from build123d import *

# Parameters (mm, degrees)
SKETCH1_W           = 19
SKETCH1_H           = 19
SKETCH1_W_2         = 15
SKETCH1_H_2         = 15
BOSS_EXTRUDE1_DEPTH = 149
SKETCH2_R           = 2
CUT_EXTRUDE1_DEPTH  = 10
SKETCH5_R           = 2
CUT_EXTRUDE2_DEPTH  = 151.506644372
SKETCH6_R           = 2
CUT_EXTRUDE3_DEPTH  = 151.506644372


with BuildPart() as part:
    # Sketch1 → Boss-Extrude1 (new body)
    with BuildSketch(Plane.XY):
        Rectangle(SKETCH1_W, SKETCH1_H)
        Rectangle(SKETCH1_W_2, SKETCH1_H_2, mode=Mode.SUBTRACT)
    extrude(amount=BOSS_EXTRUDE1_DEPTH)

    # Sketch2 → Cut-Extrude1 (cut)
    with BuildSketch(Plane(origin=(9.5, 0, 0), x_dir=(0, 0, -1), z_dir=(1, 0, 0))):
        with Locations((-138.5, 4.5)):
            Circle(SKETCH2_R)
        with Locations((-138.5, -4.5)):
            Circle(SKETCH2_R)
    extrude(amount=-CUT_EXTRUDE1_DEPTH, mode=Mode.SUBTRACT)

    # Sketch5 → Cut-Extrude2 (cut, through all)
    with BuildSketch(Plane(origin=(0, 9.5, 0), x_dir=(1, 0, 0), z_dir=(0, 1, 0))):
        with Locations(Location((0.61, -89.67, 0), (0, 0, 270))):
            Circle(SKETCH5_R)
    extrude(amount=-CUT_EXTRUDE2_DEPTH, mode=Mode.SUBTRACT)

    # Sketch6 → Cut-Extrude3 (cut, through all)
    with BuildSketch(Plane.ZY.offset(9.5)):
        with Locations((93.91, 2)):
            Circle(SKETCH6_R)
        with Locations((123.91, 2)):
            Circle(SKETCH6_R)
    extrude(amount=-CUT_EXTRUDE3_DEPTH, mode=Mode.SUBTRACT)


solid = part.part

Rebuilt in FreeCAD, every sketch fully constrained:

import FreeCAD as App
import Part
import Sketcher
from FreeCAD import Vector
Q = App.Units.Quantity


def add_polygon(sketch, points):
    """Adds a closed chain of lines whose ends are joined by coincident constraints."""
    first, n = sketch.GeometryCount, len(points)
    for a, b in zip(points, points[1:] + points[:1]):
        sketch.addGeometry(Part.LineSegment(App.Vector(*a, 0), App.Vector(*b, 0)), False)
    for i in range(n):
        sketch.addConstraint(Sketcher.Constraint("Coincident", first + i, 2, first + (i + 1) % n, 1))

doc = App.newDocument("Part")
body = doc.addObject("PartDesign::Body", "Body")

# Sketch on XY plane
sketch1 = body.newObject("Sketcher::SketchObject", "Sketch")
sketch1.AttachmentSupport = (doc.getObject("XY_Plane"), [""])
sketch1.MapMode = "FlatFace"
add_polygon(sketch1, [(-10, 10), (-10, -10), (10, -10), (10, 10)])  # lines 0-3
add_polygon(sketch1, [(8, -8), (-8, -8), (-8, 8), (8, 8)])  # lines 4-7
sketch1.addConstraint([
    Sketcher.Constraint("Vertical", 0),
    Sketcher.Constraint("Horizontal", 1),
    Sketcher.Constraint("Vertical", 2),
    Sketcher.Constraint("Horizontal", 3),
    Sketcher.Constraint("Horizontal", 4),
    Sketcher.Constraint("Vertical", 5),
    Sketcher.Constraint("Horizontal", 6),
    Sketcher.Constraint("Vertical", 7),
    Sketcher.Constraint("Symmetric", 0, 2, 2, 2, -1, 1),
    Sketcher.Constraint("Symmetric", 4, 2, 6, 2, -1, 1),
    Sketcher.Constraint("Equal", 3, 0),
    Sketcher.Constraint("Equal", 6, 5),
    Sketcher.Constraint("DistanceX", 1, 1, 1, 2, Q("19 mm")),
    Sketcher.Constraint("DistanceX", 4, 2, 4, 1, Q("15 mm")),
])
pad1 = body.newObject("PartDesign::Pad", "Pad")
pad1.Profile = sketch1
pad1.Length = 149

# Sketch on YZ plane
sketch2 = body.newObject("Sketcher::SketchObject", "Sketch001")
sketch2.AttachmentSupport = (doc.getObject("YZ_Plane"), [""])
sketch2.MapMode = "FlatFace"
sketch2.AttachmentOffset = App.Placement(Vector(0, 0, 9.5), App.Rotation())
sketch2.addGeometry([
    Part.Circle(Vector(4.5, 138.5, 0), Vector(0, 0, 1), 2),
    Part.Circle(Vector(-4.5, 138.5, 0), Vector(0, 0, 1), 2),
], False)
sketch2.addConstraint([
    Sketcher.Constraint("Equal", 0, 1),
    Sketcher.Constraint("Symmetric", 0, 3, 1, 3, -2),
    Sketcher.Constraint("Diameter", 0, Q("4 mm")),
    Sketcher.Constraint("DistanceX", 1, 3, 0, 3, Q("9 mm")),
    Sketcher.Constraint("DistanceY", -1, 1, 0, 3, Q("138.5 mm")),
])
pocket1 = body.newObject("PartDesign::Pocket", "Pocket")
pocket1.Profile = sketch2
pocket1.Length = 10

# Sketch on XZ plane
sketch3 = body.newObject("Sketcher::SketchObject", "Sketch002")
sketch3.AttachmentSupport = (doc.getObject("XZ_Plane"), [""])
sketch3.MapMode = "FlatFace"
sketch3.AttachmentOffset = App.Placement(Vector(0, 0, -9.5), App.Rotation())
sketch3.addGeometry(Part.Circle(Vector(0.6, 89.7, 0), Vector(0, 0, 1), 2), False)
sketch3.addConstraint([
    Sketcher.Constraint("Diameter", 0, Q("4 mm")),
    Sketcher.Constraint("DistanceX", -1, 1, 0, 3, Q("0.61 mm")),
    Sketcher.Constraint("DistanceY", -1, 1, 0, 3, Q("89.67 mm")),
])
pocket2 = body.newObject("PartDesign::Pocket", "Pocket001")
pocket2.Profile = sketch3
pocket2.Type = "ThroughAll"
pocket2.Reversed = True

# Sketch on YZ plane
sketch4 = body.newObject("Sketcher::SketchObject", "Sketch003")
sketch4.AttachmentSupport = (doc.getObject("YZ_Plane"), [""])
sketch4.MapMode = "FlatFace"
sketch4.AttachmentOffset = App.Placement(Vector(0, 0, -9.5), App.Rotation())
sketch4.addGeometry([
    Part.Circle(Vector(2, 93.9, 0), Vector(0, 0, 1), 2),
    Part.Circle(Vector(2, 123.9, 0), Vector(0, 0, 1), 2),
], False)
sketch4.addConstraint([
    Sketcher.Constraint("Equal", 0, 1),
    Sketcher.Constraint("Vertical", 0, 3, 1, 3),
    Sketcher.Constraint("Diameter", 0, Q("4 mm")),
    Sketcher.Constraint("DistanceX", -1, 1, 0, 3, Q("2 mm")),
    Sketcher.Constraint("DistanceY", 0, 3, 1, 3, Q("30 mm")),
    Sketcher.Constraint("DistanceY", -1, 1, 0, 3, Q("93.91 mm")),
])
pocket3 = body.newObject("PartDesign::Pocket", "Pocket002")
pocket3.Profile = sketch4
pocket3.Type = "ThroughAll"
pocket3.Reversed = True

doc.recompute()
